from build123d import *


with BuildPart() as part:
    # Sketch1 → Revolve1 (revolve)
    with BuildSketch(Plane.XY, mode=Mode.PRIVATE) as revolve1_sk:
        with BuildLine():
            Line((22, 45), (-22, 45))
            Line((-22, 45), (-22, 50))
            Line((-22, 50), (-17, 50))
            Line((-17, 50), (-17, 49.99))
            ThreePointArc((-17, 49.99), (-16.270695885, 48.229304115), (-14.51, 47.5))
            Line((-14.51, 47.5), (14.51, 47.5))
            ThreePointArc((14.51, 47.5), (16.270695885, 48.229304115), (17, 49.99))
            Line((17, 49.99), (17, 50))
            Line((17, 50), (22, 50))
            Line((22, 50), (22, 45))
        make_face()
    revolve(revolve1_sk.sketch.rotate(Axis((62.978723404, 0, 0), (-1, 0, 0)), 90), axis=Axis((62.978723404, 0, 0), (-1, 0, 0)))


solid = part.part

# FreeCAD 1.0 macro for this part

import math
import FreeCAD as App
import Part
import Sketcher

V = App.Vector

doc = App.newDocument("Part")
body = doc.addObject("PartDesign::Body", "Body")

# Sketch on XY plane
sketch1 = body.newObject("Sketcher::SketchObject", "Sketch")
sketch1.AttachmentSupport = (doc.getObject("XY_Plane"), [""])
sketch1.MapMode = "FlatFace"
sketch1.addGeometry([
    Part.LineSegment(V(-22, 45, 0), V(22, 45, 0)),  # 0
    Part.LineSegment(V(22, 45, 0), V(22, 50, 0)),  # 1
    Part.LineSegment(V(22, 50, 0), V(17, 50, 0)),  # 2
    Part.LineSegment(V(17, 50, 0), V(17, 49.99, 0)),  # 3
    Part.ArcOfCircle(Part.Circle(V(14.51, 49.99, 0), V(0, 0, 1), 2.49), math.radians(-90), math.radians(0)),  # 4
    Part.LineSegment(V(14.51, 47.5, 0), V(-14.51, 47.5, 0)),  # 5
    Part.ArcOfCircle(Part.Circle(V(-14.51, 49.99, 0), V(0, 0, 1), 2.49), math.radians(-180), math.radians(-90)),  # 6
    Part.LineSegment(V(-17, 49.99, 0), V(-17, 50, 0)),  # 7
    Part.LineSegment(V(-17, 50, 0), V(-22, 50, 0)),  # 8
    Part.LineSegment(V(-22, 50, 0), V(-22, 45, 0)),  # 9
], False)
sketch1.addConstraint([
    Sketcher.Constraint("Coincident", 0, 2, 1, 1),
    Sketcher.Constraint("Coincident", 1, 2, 2, 1),
    Sketcher.Constraint("Coincident", 2, 2, 3, 1),
    Sketcher.Constraint("Tangent", 3, 2, 4, 2),
    Sketcher.Constraint("Tangent", 4, 1, 5, 1),
    Sketcher.Constraint("Tangent", 5, 2, 6, 2),
    Sketcher.Constraint("Tangent", 6, 1, 7, 1),
    Sketcher.Constraint("Coincident", 7, 2, 8, 1),
    Sketcher.Constraint("Coincident", 8, 2, 9, 1),
    Sketcher.Constraint("Coincident", 9, 2, 0, 1),
    Sketcher.Constraint("Horizontal", 0),
    Sketcher.Constraint("Vertical", 1),
    Sketcher.Constraint("Horizontal", 2),
    Sketcher.Constraint("Vertical", 3),
    Sketcher.Constraint("Horizontal", 5),
    Sketcher.Constraint("Vertical", 7),
    Sketcher.Constraint("Horizontal", 8),
    Sketcher.Constraint("Vertical", 9),
    Sketcher.Constraint("Equal", 4, 6),
    Sketcher.Constraint("Symmetric", 2, 2, 7, 2, -2),
    Sketcher.Constraint("Equal", 2, 8),
    Sketcher.Constraint("Equal", 8, 1),
    Sketcher.Constraint("DistanceX", 0, 1, 0, 2, 44.0),
    Sketcher.Constraint("DistanceX", 2, 2, 2, 1, 5.0),
    Sketcher.Constraint("Radius", 4, 2.49),
    Sketcher.Constraint("DistanceY", -1, 1, 0, 2, 45.0),
    Sketcher.Constraint("DistanceY", 3, 2, 3, 1, 0.01),
])
revolution = body.newObject("PartDesign::Revolution", "Revolution")
revolution.Profile = sketch1
revolution.ReferenceAxis = (sketch1, ["H_Axis"])
revolution.Angle = 360

doc.recompute()
